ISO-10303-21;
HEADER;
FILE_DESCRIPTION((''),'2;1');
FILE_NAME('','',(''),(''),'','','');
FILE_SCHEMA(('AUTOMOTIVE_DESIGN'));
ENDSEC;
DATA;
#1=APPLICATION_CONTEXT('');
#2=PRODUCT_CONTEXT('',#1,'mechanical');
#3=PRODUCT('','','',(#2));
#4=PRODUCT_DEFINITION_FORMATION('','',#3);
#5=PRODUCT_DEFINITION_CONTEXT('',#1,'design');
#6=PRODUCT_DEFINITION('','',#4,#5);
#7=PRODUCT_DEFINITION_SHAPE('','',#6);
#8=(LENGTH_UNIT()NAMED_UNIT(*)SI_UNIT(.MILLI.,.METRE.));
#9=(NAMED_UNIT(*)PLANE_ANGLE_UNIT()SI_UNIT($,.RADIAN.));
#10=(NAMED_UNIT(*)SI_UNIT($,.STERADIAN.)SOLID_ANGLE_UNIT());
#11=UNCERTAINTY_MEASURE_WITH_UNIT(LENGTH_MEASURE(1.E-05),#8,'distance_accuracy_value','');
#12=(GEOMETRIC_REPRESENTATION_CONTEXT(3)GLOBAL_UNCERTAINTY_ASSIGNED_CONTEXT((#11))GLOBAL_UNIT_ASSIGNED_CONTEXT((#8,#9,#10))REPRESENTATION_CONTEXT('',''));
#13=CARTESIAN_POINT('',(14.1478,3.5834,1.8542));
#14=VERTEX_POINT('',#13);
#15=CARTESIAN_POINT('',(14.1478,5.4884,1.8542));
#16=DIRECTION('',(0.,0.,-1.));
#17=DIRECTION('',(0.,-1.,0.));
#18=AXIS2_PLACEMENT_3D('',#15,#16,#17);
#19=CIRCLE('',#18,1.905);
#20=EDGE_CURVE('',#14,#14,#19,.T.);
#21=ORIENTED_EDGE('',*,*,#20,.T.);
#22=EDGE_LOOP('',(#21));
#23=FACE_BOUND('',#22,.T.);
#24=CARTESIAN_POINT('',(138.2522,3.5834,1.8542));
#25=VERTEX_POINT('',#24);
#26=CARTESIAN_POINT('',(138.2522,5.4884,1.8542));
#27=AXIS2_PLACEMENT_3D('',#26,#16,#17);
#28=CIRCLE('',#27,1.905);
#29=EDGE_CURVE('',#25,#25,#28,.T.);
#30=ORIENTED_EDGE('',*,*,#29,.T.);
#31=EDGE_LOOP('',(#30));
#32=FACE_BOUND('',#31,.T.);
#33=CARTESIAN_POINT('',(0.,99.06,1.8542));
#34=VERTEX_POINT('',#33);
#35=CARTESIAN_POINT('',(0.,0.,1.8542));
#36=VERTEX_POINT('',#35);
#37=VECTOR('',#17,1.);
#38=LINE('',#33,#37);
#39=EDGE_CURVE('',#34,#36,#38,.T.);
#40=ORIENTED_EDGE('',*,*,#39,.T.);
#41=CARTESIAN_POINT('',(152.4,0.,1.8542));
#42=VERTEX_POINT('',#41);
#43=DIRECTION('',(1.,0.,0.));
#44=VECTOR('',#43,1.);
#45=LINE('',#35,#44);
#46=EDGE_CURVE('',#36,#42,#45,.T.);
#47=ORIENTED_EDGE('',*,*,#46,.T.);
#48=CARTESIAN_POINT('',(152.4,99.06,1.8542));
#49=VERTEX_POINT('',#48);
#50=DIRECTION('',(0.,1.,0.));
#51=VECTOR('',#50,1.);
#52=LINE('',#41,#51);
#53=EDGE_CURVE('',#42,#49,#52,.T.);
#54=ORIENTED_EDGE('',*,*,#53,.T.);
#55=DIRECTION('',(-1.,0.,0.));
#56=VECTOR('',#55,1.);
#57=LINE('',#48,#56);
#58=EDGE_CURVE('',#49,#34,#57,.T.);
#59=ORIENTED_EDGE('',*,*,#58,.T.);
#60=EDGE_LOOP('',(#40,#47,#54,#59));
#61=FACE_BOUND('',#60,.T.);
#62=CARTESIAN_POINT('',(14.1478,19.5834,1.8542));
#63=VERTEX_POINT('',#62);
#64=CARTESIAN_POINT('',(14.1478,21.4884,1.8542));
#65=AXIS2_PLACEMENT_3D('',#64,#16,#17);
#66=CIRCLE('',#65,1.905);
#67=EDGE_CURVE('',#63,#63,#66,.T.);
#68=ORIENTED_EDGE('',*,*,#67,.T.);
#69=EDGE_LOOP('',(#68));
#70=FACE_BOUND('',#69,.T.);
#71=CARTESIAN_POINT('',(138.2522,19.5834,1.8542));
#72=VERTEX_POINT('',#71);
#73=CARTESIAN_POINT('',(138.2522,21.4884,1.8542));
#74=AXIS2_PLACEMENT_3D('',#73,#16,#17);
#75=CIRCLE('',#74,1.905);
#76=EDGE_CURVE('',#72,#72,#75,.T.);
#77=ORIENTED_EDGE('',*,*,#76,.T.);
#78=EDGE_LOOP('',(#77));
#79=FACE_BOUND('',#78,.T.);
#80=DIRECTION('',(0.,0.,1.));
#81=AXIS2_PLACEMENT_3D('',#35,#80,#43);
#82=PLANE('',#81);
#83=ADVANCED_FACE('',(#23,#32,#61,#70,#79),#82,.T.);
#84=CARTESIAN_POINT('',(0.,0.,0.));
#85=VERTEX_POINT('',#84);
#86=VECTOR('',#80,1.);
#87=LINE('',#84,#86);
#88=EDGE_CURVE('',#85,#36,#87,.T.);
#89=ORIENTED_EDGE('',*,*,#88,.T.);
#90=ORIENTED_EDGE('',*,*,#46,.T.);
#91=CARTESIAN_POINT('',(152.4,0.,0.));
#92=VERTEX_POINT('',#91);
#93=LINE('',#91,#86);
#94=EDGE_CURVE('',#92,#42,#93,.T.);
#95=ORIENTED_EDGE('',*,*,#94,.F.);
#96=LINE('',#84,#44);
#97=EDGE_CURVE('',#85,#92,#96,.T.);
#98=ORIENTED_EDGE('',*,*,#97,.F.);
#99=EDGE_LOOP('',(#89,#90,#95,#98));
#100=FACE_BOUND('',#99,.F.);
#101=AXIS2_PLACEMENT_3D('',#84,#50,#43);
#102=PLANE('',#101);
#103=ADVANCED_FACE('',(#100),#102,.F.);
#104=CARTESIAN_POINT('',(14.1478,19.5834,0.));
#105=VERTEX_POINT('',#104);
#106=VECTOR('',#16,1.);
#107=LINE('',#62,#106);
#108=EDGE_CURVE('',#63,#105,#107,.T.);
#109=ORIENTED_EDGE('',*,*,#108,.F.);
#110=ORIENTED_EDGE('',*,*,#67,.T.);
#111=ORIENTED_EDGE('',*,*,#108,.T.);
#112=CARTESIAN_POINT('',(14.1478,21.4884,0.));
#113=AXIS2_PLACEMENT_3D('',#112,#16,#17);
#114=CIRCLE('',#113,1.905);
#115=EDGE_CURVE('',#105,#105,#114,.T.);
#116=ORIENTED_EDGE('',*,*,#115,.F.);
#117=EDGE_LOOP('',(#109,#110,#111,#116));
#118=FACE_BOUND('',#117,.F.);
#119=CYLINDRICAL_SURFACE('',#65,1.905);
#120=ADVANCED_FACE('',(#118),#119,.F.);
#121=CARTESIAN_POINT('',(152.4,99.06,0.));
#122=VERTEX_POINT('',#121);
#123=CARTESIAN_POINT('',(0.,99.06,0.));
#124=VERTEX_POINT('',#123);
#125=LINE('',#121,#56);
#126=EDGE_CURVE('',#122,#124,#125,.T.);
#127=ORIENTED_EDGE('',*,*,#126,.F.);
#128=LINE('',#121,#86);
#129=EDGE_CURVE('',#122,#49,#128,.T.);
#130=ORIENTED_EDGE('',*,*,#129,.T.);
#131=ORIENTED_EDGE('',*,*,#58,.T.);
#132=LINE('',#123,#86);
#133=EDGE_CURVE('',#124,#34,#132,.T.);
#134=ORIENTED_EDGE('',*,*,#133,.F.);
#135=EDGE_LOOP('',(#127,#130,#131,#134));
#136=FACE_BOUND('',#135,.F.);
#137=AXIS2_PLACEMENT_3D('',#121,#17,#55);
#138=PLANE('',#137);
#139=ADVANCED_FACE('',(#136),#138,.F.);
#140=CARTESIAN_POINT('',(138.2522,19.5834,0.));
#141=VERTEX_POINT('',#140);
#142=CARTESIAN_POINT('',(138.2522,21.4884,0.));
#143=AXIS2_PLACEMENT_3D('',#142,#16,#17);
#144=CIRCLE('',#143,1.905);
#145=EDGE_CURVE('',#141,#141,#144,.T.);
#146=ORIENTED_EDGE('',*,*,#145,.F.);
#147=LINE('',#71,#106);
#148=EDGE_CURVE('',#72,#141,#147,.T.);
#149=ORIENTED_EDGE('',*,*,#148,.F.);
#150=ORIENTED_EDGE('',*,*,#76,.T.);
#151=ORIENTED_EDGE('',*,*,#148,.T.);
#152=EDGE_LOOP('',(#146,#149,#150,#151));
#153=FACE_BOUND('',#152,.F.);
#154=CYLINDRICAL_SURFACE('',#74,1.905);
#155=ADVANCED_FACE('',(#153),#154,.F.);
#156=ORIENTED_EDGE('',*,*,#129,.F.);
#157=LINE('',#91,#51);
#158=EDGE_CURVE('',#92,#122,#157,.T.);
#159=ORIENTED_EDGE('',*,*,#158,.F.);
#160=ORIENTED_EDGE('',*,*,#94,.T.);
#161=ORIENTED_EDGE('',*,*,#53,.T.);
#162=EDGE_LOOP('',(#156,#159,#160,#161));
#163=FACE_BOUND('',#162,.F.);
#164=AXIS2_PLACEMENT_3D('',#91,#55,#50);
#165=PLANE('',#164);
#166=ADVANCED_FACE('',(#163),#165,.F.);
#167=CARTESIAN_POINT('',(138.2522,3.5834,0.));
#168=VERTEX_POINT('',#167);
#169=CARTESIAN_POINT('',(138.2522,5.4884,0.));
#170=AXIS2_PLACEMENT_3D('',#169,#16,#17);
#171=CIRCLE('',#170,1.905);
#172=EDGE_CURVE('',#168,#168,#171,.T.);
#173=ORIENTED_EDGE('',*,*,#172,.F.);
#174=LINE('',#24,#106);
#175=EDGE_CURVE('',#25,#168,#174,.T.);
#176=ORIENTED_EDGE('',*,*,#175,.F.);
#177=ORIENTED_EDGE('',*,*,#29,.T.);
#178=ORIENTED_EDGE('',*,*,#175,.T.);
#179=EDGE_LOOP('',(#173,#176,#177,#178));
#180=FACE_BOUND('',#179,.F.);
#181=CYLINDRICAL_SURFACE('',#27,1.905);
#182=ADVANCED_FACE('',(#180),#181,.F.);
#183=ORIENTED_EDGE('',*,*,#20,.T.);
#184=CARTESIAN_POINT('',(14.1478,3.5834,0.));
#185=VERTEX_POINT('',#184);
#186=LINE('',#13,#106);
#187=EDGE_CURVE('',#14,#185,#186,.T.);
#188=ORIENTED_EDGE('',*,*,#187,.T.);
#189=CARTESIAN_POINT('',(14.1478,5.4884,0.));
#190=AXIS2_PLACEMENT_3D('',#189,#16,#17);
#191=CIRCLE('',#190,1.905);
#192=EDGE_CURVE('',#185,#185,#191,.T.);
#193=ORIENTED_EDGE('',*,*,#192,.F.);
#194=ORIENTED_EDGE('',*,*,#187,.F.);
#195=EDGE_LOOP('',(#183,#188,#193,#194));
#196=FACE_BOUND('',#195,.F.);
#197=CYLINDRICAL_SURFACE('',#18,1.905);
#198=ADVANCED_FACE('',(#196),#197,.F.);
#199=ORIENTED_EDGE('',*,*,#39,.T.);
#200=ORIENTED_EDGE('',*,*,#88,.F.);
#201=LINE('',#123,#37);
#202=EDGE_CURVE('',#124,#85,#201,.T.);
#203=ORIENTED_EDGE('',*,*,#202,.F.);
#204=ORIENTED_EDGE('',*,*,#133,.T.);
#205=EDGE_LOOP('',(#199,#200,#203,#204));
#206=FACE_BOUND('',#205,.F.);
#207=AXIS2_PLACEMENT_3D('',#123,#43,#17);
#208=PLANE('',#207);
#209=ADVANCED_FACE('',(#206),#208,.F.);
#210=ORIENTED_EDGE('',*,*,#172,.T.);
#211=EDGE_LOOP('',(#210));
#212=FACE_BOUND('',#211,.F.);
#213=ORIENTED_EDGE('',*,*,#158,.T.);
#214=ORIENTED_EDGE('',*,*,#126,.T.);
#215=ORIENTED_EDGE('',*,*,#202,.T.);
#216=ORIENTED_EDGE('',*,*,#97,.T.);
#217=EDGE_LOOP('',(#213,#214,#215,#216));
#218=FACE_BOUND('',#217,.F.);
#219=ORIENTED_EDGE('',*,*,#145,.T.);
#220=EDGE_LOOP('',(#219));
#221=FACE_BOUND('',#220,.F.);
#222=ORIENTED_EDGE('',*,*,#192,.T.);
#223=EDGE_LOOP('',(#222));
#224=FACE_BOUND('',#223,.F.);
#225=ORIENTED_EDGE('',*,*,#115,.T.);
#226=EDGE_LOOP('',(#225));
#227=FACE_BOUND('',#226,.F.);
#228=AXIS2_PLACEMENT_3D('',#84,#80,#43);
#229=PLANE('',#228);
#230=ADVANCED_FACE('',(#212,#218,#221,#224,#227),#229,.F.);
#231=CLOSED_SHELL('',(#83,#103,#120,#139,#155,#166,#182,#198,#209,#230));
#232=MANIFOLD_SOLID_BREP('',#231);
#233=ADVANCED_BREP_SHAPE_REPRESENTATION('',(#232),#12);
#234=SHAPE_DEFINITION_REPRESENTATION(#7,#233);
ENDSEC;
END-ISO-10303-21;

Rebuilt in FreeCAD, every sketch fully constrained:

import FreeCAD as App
import Part
import Sketcher
Q = App.Units.Quantity

doc = App.newDocument("Part")
body = doc.addObject("PartDesign::Body", "Body")

# Sketch on XY plane
sketch1 = body.newObject("Sketcher::SketchObject", "Sketch")
sketch1.AttachmentSupport = (doc.getObject("XY_Plane"), [""])
sketch1.MapMode = "FlatFace"
sketch1.addGeometry(Part.LineSegment(App.Vector(0, 99, 0), App.Vector(0, 0, 0)), False)
sketch1.addGeometry(Part.LineSegment(App.Vector(0, 0, 0), App.Vector(152, 0, 0)), False)
sketch1.addGeometry(Part.LineSegment(App.Vector(152, 0, 0), App.Vector(152, 99, 0)), False)
sketch1.addGeometry(Part.LineSegment(App.Vector(152, 99, 0), App.Vector(0, 99, 0)), False)
sketch1.addConstraint(Sketcher.Constraint("Coincident", 0, 2, 1, 1))
sketch1.addConstraint(Sketcher.Constraint("Coincident", 1, 2, 2, 1))
sketch1.addConstraint(Sketcher.Constraint("Coincident", 2, 2, 3, 1))
sketch1.addConstraint(Sketcher.Constraint("Coincident", 3, 2, 0, 1))
sketch1.addConstraint(Sketcher.Constraint("Vertical", 0))
sketch1.addConstraint(Sketcher.Constraint("Horizontal", 1))
sketch1.addConstraint(Sketcher.Constraint("Vertical", 2))
sketch1.addConstraint(Sketcher.Constraint("Horizontal", 3))
sketch1.addConstraint(Sketcher.Constraint("Coincident", 0, 2, -1, 1))
sketch1.addConstraint(Sketcher.Constraint("DistanceX", 1, 1, 1, 2, Q("6 in")))
sketch1.addConstraint(Sketcher.Constraint("DistanceY", 0, 2, 0, 1, Q("3.9 in")))
pad1 = body.newObject("PartDesign::Pad", "Pad")
pad1.Profile = sketch1
pad1.Length = Q("0.073 in")

# Sketch on XY plane
sketch2 = body.newObject("Sketcher::SketchObject", "Sketch001")
sketch2.AttachmentSupport = (doc.getObject("XY_Plane"), [""])
sketch2.MapMode = "FlatFace"
sketch2.AttachmentOffset = App.Placement(App.Vector(0, 0, 0.073 * 25.4), App.Rotation())
sketch2.addGeometry(Part.Circle(App.Vector(14.1, 21.5, 0), App.Vector(0, 0, 1), 1.9), False)
sketch2.addGeometry(Part.Circle(App.Vector(14.1, 5.5, 0), App.Vector(0, 0, 1), 1.9), False)
sketch2.addGeometry(Part.Circle(App.Vector(138.3, 21.5, 0), App.Vector(0, 0, 1), 1.9), False)
sketch2.addGeometry(Part.Circle(App.Vector(138.3, 5.5, 0), App.Vector(0, 0, 1), 1.9), False)
sketch2.addConstraint(Sketcher.Constraint("Equal", 0, 1))
sketch2.addConstraint(Sketcher.Constraint("Equal", 1, 2))
sketch2.addConstraint(Sketcher.Constraint("Equal", 2, 3))
sketch2.addConstraint(Sketcher.Constraint("Horizontal", 0, 3, 2, 3))
sketch2.addConstraint(Sketcher.Constraint("Horizontal", 1, 3, 3, 3))
sketch2.addConstraint(Sketcher.Constraint("Vertical", 0, 3, 1, 3))
sketch2.addConstraint(Sketcher.Constraint("Vertical", 2, 3, 3, 3))
sketch2.addConstraint(Sketcher.Constraint("Diameter", 0, Q("0.15 in")))
sketch2.addConstraint(Sketcher.Constraint("DistanceX", -1, 1, 0, 3, Q("0.557 in")))
sketch2.addConstraint(Sketcher.Constraint("DistanceY", -1, 1, 0, 3, Q("0.846 in")))
sketch2.addConstraint(Sketcher.Constraint("DistanceX", -1, 1, 2, 3, Q("5.443 in")))
sketch2.addConstraint(Sketcher.Constraint("DistanceY", -1, 1, 1, 3, 5.4884))
doc.recompute()
hole = body.newObject("PartDesign::Hole", "Hole")
hole.Profile = sketch2
hole.ThreadType = "None"
hole.Diameter = Q("0.15 in")
hole.DepthType = "Dimension"
hole.Depth = Q("0.432 in")
hole.DrillPoint = "Angled"
hole.DrillPointAngle = 118

doc.recompute()
